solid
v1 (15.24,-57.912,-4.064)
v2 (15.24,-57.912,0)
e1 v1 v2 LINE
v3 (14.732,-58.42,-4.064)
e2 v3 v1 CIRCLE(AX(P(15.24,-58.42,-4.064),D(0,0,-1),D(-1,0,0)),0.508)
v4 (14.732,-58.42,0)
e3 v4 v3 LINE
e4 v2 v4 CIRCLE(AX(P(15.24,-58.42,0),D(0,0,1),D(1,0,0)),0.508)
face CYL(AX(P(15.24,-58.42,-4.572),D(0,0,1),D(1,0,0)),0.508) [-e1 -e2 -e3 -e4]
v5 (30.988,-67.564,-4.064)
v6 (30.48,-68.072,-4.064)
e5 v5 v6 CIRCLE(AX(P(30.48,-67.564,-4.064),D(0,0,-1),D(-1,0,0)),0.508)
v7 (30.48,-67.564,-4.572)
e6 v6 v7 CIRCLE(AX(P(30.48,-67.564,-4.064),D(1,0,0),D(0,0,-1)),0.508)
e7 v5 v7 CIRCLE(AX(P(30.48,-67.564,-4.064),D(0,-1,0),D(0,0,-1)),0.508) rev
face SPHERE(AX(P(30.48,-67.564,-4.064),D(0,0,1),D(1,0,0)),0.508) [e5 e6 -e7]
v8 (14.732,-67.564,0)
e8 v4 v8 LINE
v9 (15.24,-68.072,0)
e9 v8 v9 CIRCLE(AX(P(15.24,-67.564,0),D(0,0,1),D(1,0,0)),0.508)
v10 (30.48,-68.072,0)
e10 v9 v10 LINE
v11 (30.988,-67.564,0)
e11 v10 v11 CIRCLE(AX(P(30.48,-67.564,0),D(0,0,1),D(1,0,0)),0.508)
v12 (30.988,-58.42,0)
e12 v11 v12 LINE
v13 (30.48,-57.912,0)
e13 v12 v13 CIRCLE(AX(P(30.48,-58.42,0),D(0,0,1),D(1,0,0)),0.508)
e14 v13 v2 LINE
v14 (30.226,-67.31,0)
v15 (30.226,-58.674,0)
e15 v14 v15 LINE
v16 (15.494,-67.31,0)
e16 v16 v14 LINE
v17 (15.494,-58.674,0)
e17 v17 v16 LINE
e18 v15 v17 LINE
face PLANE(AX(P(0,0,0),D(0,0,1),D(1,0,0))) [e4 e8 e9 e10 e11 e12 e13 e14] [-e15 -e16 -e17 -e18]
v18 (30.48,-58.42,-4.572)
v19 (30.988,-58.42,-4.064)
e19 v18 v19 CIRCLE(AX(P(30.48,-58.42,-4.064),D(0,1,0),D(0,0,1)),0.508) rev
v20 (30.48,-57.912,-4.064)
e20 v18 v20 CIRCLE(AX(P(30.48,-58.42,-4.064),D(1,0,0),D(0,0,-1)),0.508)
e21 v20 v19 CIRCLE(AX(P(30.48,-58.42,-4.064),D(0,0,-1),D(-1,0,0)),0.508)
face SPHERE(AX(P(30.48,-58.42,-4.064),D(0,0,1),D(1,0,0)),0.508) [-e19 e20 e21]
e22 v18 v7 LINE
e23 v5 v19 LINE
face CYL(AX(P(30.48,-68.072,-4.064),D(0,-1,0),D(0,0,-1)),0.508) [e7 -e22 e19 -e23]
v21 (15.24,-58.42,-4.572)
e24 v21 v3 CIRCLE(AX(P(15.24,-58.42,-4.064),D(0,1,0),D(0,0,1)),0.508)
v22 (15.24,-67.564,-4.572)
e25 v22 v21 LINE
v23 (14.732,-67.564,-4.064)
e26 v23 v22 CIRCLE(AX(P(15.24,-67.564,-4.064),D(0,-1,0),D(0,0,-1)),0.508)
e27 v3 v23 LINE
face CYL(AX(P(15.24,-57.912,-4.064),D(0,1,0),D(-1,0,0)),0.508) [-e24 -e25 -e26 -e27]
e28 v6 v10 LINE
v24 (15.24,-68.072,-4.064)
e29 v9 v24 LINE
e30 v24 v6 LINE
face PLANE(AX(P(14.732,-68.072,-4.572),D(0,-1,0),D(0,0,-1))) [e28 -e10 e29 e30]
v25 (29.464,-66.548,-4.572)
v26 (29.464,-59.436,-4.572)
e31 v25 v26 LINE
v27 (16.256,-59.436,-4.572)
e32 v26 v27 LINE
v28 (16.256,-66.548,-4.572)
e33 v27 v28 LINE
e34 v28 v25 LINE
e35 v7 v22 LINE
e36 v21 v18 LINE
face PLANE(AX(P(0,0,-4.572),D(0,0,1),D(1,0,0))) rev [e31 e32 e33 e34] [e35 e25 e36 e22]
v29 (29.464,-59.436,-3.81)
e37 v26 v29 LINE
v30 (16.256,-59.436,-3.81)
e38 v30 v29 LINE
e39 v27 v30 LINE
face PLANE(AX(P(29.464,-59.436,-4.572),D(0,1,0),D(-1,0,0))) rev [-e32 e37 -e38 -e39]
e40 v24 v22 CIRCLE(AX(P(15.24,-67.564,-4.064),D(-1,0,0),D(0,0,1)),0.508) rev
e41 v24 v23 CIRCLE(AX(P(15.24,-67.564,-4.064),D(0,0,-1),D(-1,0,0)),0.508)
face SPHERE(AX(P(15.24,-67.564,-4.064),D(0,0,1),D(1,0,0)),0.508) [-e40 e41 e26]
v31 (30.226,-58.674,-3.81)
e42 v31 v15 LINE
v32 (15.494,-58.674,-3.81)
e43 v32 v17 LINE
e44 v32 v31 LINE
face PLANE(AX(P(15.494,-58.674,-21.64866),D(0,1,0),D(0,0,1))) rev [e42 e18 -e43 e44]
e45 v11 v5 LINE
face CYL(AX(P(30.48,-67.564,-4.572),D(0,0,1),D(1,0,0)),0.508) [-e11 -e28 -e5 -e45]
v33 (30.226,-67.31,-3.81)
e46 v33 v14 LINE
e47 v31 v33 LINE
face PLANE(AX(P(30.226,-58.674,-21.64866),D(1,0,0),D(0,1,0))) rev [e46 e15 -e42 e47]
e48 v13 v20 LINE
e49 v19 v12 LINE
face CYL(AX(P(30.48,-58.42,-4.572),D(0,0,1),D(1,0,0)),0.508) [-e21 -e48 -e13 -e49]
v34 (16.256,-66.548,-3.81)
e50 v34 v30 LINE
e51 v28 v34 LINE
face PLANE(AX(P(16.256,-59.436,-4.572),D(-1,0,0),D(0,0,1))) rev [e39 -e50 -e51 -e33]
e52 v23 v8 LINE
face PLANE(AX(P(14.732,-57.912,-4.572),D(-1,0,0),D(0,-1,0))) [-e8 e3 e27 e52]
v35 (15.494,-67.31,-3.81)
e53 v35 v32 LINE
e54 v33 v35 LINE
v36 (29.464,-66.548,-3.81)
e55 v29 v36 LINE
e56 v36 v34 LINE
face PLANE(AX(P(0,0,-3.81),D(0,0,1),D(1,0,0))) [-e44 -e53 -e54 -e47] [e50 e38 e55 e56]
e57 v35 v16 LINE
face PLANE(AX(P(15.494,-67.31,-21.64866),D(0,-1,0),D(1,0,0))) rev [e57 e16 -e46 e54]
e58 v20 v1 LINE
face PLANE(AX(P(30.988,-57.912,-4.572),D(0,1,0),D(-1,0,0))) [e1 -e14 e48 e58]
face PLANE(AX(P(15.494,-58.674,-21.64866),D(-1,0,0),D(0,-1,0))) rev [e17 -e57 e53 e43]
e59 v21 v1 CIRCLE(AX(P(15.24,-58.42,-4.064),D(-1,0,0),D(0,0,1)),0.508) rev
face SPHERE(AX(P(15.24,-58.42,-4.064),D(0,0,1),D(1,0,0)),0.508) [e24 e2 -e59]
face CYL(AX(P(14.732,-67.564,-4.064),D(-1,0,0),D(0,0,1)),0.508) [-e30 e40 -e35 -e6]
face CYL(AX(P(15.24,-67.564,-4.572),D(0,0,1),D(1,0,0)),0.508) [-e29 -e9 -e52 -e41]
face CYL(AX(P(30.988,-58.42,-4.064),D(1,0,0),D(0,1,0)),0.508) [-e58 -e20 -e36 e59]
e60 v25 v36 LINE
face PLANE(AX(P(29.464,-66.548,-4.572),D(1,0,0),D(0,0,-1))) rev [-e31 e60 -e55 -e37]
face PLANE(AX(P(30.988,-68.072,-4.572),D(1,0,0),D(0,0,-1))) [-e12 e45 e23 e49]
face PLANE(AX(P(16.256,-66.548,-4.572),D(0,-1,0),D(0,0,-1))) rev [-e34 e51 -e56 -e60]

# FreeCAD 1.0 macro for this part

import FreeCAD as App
import Part
import Sketcher
from FreeCAD import Vector
Q = App.Units.Quantity


def edges_at(feature, points):
    """Names of the edges that pass closest to the given points."""
    edges = feature.Shape.Edges
    near = lambda p: min(range(len(edges)), key=lambda i: edges[i].distToShape(Part.Vertex(*p))[0])
    return sorted({f"Edge{near(p) + 1}" for p in points})


def add_polygon(sketch, points):
    """Adds a closed chain of lines whose ends are joined by coincident constraints."""
    first, n = sketch.GeometryCount, len(points)
    for a, b in zip(points, points[1:] + points[:1]):
        sketch.addGeometry(Part.LineSegment(App.Vector(*a, 0), App.Vector(*b, 0)), False)
    for i in range(n):
        sketch.addConstraint(Sketcher.Constraint("Coincident", first + i, 2, first + (i + 1) % n, 1))

doc = App.newDocument("Part")
body = doc.addObject("PartDesign::Body", "Body")

sketch1 = body.newObject("Sketcher::SketchObject", "Sketch")
sketch1.AttachmentSupport = (doc.getObject("XY_Plane"), [""])
sketch1.MapMode = "FlatFace"
add_polygon(sketch1, [(14.732, -57.912), (14.732, -68.072), (30.988, -68.072), (30.988, -57.912)])
add_polygon(sketch1, [(29.464, -66.548), (16.256, -66.548), (16.256, -59.436), (29.464, -59.436)])
sketch1.addConstraint(Sketcher.Constraint("Vertical", 0))
sketch1.addConstraint(Sketcher.Constraint("Horizontal", 1))
sketch1.addConstraint(Sketcher.Constraint("Vertical", 2))
sketch1.addConstraint(Sketcher.Constraint("Horizontal", 3))
sketch1.addConstraint(Sketcher.Constraint("Horizontal", 4))
sketch1.addConstraint(Sketcher.Constraint("Vertical", 5))
sketch1.addConstraint(Sketcher.Constraint("Horizontal", 6))
sketch1.addConstraint(Sketcher.Constraint("Vertical", 7))
sketch1.addConstraint(Sketcher.Constraint("DistanceY", 0, 2, 0, 1, Q("0.4 in")))
sketch1.addConstraint(Sketcher.Constraint("DistanceX", 1, 1, 1, 2, Q("0.64 in")))
sketch1.addConstraint(Sketcher.Constraint("DistanceX", 4, 2, 4, 1, Q("0.52 in")))
sketch1.addConstraint(Sketcher.Constraint("DistanceY", 5, 1, 5, 2, Q("0.28 in")))
sketch1.addConstraint(Sketcher.Constraint("DistanceX", -1, 1, 0, 2, Q("0.58 in")))
sketch1.addConstraint(Sketcher.Constraint("DistanceY", 0, 2, -1, 1, Q("2.68 in")))
sketch1.addConstraint(Sketcher.Constraint("DistanceX", -1, 1, 4, 2, Q("0.64 in")))
sketch1.addConstraint(Sketcher.Constraint("DistanceY", 4, 2, -1, 1, Q("2.62 in")))
pad1 = body.newObject("PartDesign::Pad", "Pad")
pad1.Profile = sketch1
pad1.Length = Q("0.18 in")
pad1.Reversed = True

sketch2 = body.newObject("Sketcher::SketchObject", "Sketch001")
sketch2.AttachmentSupport = (doc.getObject("XY_Plane"), [""])
sketch2.MapMode = "FlatFace"
add_polygon(sketch2, [(15.494, -58.674), (15.494, -67.31), (30.226, -67.31), (30.226, -58.674)])
sketch2.addConstraint(Sketcher.Constraint("Vertical", 0))
sketch2.addConstraint(Sketcher.Constraint("Horizontal", 1))
sketch2.addConstraint(Sketcher.Constraint("Vertical", 2))
sketch2.addConstraint(Sketcher.Constraint("Horizontal", 3))
sketch2.addConstraint(Sketcher.Constraint("DistanceX", 1, 1, 1, 2, Q("0.58 in")))
sketch2.addConstraint(Sketcher.Constraint("DistanceY", 0, 2, 0, 1, Q("0.34 in")))
sketch2.addConstraint(Sketcher.Constraint("DistanceX", -1, 1, 0, 2, Q("0.61 in")))
sketch2.addConstraint(Sketcher.Constraint("DistanceY", 0, 2, -1, 1, Q("2.65 in")))
pocket1 = body.newObject("PartDesign::Pocket", "Pocket")
pocket1.Profile = sketch2
pocket1.Length = Q("0.15 in")
doc.recompute()

fillet = body.newObject("PartDesign::Fillet", "Fillet")
fillet.Base = (pocket1, edges_at(pocket1, [
    (14.732, -62.992, -4.572),
    (22.86, -68.072, -4.572),
    (30.988, -62.992, -4.572),
    (22.86, -57.912, -4.572),
    (30.988, -68.072, -2.286),
    (14.732, -68.072, -2.286),
    (14.732, -57.912, -2.286),
    (30.988, -57.912, -2.286),
]))
fillet.Radius = Q("0.02 in")

doc.recompute()
